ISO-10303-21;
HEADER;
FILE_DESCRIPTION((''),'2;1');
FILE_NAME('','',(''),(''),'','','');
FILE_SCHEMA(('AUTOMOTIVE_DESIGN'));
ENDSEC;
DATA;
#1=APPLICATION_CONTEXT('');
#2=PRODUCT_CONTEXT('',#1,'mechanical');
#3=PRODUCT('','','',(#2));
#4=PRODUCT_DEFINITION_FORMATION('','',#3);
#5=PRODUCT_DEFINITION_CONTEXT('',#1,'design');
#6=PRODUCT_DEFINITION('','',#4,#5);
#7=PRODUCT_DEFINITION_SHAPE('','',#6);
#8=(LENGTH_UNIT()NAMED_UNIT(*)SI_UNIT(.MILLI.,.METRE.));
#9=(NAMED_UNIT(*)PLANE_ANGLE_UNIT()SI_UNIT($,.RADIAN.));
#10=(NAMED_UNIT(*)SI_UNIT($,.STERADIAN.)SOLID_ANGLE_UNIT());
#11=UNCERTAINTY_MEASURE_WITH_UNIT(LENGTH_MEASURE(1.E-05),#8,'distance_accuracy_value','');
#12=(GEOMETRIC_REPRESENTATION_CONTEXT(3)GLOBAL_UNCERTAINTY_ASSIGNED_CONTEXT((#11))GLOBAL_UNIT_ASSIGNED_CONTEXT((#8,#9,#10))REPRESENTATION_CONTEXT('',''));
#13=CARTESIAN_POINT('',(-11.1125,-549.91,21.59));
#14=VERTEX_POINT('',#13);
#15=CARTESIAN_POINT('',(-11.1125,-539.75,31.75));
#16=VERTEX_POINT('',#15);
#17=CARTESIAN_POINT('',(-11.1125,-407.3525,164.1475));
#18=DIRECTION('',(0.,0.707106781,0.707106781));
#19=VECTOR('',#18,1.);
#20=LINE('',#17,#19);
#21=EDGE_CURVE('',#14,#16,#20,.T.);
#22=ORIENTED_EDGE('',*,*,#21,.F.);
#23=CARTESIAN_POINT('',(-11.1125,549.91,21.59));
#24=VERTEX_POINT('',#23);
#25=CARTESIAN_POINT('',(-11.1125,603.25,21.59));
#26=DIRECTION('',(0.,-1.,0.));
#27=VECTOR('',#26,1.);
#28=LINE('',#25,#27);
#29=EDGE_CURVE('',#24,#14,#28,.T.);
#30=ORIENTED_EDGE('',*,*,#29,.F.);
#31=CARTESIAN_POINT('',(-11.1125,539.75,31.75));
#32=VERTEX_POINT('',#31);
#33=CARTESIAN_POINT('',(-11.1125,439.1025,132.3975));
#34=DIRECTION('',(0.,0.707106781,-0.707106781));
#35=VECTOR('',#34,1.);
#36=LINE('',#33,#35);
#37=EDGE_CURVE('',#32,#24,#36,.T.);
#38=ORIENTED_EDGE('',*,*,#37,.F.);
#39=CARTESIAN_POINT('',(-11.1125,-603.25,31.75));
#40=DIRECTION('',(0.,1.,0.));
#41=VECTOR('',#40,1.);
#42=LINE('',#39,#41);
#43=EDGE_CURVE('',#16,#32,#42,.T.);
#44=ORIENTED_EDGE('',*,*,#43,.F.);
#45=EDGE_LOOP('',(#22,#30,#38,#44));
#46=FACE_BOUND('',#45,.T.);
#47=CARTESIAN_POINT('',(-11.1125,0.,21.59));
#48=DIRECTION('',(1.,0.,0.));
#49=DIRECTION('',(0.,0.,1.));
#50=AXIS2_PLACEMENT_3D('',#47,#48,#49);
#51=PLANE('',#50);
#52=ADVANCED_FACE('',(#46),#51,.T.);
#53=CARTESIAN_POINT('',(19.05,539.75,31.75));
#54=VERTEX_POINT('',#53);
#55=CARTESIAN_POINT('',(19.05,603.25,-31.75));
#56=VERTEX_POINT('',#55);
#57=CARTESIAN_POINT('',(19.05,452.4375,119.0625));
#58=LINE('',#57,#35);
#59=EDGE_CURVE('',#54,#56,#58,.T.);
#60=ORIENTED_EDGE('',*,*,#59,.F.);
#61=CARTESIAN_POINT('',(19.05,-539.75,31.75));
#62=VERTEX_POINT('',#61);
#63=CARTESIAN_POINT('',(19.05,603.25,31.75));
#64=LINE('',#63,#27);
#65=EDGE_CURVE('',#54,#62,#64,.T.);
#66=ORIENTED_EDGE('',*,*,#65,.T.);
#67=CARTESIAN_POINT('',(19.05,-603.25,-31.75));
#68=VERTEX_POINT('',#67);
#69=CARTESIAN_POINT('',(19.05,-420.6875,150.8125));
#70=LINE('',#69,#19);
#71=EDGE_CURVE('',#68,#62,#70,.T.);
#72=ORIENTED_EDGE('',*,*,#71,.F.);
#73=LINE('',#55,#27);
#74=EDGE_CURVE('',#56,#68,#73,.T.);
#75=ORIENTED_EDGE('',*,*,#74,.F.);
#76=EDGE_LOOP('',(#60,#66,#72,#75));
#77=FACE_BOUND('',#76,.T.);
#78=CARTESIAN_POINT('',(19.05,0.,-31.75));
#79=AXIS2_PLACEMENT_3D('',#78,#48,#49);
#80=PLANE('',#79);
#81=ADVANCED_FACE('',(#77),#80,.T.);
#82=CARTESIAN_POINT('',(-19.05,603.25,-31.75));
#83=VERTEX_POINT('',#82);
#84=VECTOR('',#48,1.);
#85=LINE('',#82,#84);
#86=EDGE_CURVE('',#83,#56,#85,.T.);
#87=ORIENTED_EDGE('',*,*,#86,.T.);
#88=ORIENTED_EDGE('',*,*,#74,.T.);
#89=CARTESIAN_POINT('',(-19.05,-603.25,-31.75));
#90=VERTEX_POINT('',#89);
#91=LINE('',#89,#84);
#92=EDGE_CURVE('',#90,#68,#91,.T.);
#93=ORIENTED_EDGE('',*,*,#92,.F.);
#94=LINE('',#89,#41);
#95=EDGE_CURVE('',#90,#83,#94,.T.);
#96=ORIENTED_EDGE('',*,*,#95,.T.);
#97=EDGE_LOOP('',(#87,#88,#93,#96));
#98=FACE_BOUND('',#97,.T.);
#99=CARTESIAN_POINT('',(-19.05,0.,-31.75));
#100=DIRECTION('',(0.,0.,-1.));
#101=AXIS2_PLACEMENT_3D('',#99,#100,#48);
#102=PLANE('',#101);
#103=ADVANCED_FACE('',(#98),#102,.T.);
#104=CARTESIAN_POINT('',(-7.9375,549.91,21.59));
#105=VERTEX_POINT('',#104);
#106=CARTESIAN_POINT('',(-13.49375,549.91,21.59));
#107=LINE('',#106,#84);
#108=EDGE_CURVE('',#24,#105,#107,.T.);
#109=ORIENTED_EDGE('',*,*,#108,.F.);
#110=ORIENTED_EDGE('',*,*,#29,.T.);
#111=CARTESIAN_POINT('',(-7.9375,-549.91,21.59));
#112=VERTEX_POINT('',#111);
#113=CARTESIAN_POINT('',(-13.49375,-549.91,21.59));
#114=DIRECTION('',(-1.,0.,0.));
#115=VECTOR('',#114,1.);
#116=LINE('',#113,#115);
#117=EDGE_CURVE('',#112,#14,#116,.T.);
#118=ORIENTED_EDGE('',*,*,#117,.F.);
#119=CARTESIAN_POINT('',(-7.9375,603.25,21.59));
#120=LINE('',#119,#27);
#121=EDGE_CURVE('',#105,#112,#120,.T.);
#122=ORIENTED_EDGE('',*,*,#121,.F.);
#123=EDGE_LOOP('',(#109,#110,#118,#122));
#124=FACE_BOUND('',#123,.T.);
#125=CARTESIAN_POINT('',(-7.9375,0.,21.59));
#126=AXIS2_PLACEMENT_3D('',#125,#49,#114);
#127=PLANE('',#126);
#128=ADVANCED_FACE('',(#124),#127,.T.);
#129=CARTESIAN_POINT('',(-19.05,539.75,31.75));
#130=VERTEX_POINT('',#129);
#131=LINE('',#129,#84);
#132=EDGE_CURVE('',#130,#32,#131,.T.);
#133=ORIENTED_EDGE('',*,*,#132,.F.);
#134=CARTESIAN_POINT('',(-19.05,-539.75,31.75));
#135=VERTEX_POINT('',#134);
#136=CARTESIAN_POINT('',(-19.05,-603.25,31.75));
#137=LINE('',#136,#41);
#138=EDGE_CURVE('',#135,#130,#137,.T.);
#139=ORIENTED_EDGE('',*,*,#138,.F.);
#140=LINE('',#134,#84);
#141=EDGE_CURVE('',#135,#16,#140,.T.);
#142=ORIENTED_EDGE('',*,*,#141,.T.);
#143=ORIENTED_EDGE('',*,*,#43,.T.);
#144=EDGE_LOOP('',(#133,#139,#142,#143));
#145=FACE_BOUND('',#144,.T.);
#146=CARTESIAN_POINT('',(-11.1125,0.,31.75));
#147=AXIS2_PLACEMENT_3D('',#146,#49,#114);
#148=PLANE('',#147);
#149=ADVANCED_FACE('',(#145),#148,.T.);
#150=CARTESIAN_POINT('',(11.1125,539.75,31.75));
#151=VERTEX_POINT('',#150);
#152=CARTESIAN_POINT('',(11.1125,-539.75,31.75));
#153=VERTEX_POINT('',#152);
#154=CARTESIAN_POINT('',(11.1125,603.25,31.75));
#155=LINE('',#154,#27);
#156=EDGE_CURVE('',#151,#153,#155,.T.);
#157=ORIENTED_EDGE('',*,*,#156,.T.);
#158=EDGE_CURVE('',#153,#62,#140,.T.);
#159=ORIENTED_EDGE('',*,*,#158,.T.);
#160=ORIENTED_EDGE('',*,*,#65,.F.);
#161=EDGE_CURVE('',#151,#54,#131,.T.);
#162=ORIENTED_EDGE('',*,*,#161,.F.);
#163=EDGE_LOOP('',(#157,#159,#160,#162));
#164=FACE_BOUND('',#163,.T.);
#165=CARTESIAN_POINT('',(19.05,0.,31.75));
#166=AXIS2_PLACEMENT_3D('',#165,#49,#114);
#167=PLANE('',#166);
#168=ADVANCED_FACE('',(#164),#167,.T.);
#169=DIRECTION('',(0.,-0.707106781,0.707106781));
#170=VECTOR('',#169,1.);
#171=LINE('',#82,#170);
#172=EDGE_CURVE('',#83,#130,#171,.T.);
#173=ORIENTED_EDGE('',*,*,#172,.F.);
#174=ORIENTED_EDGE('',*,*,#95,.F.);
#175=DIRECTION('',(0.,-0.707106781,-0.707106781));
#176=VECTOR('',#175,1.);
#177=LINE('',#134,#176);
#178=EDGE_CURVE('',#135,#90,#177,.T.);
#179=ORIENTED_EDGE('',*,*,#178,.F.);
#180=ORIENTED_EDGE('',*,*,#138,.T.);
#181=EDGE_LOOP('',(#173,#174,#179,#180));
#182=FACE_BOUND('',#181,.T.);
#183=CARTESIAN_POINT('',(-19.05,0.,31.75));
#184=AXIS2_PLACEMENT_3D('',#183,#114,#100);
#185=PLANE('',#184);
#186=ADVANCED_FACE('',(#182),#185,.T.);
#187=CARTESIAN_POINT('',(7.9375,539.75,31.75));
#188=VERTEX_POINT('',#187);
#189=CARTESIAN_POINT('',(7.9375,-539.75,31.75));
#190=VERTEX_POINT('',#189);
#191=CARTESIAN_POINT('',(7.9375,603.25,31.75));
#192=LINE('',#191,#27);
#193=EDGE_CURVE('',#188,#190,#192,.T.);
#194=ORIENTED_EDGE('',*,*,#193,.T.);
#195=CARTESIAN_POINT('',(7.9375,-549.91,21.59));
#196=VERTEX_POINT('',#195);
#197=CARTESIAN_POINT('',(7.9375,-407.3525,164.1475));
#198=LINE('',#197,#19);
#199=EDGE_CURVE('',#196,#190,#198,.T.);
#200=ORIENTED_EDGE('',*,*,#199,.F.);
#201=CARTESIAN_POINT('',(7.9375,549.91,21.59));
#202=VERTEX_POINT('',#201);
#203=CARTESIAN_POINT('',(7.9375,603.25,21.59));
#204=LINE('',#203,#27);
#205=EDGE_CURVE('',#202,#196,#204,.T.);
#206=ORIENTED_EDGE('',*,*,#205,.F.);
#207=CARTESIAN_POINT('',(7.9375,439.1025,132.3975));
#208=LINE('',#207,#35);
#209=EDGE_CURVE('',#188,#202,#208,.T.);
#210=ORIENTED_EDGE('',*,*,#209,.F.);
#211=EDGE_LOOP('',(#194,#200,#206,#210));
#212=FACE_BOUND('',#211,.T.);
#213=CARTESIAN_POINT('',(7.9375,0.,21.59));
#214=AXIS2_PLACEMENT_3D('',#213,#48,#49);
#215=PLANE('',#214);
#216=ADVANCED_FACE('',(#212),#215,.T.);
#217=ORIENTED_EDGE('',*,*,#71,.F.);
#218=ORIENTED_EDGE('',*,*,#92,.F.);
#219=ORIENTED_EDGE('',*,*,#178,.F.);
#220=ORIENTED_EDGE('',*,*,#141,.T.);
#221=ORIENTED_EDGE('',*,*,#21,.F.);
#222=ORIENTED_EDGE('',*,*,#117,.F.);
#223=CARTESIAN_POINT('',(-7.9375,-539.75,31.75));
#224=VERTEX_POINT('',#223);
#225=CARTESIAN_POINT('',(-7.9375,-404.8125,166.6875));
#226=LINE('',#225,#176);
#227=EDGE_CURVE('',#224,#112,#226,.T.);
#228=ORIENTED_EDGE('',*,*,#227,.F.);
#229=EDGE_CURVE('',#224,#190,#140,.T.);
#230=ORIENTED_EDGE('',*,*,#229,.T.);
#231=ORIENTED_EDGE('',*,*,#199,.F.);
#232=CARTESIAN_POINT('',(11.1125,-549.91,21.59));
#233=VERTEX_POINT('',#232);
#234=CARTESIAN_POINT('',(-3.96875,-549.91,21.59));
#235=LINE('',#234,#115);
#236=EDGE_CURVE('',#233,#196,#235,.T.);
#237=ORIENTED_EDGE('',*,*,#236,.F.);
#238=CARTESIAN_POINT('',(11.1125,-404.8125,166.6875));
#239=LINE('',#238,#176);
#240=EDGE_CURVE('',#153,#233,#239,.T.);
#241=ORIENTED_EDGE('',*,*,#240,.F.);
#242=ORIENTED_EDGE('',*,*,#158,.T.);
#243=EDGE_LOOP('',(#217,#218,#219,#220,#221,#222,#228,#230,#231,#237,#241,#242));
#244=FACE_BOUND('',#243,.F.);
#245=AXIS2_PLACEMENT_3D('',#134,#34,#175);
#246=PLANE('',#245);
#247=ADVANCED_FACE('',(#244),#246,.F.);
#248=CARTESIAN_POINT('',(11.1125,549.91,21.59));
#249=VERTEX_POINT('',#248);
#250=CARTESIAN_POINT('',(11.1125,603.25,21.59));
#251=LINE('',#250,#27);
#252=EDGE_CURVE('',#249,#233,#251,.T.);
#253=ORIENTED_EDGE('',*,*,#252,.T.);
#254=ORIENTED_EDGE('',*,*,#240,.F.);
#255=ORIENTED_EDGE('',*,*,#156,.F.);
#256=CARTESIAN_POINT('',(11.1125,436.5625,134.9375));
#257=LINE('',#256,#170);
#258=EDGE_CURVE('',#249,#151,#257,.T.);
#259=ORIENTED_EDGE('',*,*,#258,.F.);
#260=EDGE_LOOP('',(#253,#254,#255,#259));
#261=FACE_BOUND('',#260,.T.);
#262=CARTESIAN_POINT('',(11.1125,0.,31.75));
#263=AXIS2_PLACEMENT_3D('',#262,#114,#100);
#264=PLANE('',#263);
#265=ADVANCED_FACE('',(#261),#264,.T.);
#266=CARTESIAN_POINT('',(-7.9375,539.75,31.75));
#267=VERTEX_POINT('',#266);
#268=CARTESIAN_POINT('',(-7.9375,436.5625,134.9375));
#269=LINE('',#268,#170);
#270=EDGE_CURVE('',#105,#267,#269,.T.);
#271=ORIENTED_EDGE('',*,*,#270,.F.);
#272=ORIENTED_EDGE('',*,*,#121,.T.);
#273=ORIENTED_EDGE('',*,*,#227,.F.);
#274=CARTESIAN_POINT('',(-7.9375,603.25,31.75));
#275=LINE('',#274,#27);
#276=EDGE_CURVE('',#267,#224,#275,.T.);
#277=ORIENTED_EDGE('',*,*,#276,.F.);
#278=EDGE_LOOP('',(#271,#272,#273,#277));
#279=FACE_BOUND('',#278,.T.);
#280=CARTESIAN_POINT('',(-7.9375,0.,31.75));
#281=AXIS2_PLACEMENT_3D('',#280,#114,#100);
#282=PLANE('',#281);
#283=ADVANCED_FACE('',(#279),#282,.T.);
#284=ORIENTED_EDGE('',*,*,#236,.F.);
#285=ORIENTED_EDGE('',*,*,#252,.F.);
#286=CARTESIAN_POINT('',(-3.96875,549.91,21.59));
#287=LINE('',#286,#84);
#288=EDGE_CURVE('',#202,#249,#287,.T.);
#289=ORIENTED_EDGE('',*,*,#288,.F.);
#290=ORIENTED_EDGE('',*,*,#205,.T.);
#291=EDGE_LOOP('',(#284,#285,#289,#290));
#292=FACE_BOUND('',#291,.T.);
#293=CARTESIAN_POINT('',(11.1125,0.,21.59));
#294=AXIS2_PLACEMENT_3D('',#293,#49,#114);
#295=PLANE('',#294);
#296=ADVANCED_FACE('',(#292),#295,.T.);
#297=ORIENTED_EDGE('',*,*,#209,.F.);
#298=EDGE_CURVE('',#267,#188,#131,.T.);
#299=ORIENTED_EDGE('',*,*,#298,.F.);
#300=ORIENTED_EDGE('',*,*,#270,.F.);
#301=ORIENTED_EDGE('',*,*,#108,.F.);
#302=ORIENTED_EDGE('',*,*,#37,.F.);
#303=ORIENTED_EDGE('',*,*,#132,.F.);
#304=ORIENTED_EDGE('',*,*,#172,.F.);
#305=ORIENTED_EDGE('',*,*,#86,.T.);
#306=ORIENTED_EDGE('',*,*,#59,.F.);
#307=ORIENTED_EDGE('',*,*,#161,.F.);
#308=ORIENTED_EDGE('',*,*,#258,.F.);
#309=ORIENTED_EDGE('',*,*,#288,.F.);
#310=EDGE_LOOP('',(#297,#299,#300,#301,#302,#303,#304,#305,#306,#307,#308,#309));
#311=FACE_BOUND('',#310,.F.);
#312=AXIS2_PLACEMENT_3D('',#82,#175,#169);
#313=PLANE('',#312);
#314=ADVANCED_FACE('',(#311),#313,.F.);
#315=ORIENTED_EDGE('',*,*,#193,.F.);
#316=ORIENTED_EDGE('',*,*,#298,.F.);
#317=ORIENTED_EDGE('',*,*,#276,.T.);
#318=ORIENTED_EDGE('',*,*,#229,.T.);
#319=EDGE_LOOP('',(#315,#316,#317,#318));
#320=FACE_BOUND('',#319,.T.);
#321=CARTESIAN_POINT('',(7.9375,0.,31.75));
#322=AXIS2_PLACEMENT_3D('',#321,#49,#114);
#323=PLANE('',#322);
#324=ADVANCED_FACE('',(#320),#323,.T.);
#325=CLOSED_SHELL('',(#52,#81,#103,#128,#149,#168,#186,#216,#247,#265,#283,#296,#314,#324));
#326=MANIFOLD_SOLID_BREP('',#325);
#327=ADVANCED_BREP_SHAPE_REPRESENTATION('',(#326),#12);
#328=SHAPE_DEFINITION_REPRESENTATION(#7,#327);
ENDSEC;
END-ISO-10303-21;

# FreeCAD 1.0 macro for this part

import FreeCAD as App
import Part
import Sketcher

V = App.Vector
Q = App.Units.Quantity

doc = App.newDocument("Part")
body = doc.addObject("PartDesign::Body", "Body")

sketch1 = doc.addObject("Sketcher::SketchObject", "Sketch")
body.addObject(sketch1)
sketch1.AttachmentSupport = (doc.XZ_Plane, [""])
sketch1.MapMode = "FlatFace"
sketch1.addGeometry(Part.LineSegment(V(-19.1, -31.8, 0), V(19.1, -31.8, 0)), False)
sketch1.addGeometry(Part.LineSegment(V(19.1, -31.8, 0), V(19.1, 31.8, 0)), False)
sketch1.addGeometry(Part.LineSegment(V(19.1, 31.8, 0), V(11.1, 31.8, 0)), False)
sketch1.addGeometry(Part.LineSegment(V(11.1, 31.8, 0), V(11.1, 21.6, 0)), False)
sketch1.addGeometry(Part.LineSegment(V(11.1, 21.6, 0), V(7.9, 21.6, 0)), False)
sketch1.addGeometry(Part.LineSegment(V(7.9, 21.6, 0), V(7.9, 31.8, 0)), False)
sketch1.addGeometry(Part.LineSegment(V(7.9, 31.8, 0), V(-7.9, 31.8, 0)), False)
sketch1.addGeometry(Part.LineSegment(V(-7.9, 31.8, 0), V(-7.9, 21.6, 0)), False)
sketch1.addGeometry(Part.LineSegment(V(-7.9, 21.6, 0), V(-11.1, 21.6, 0)), False)
sketch1.addGeometry(Part.LineSegment(V(-11.1, 21.6, 0), V(-11.1, 31.8, 0)), False)
sketch1.addGeometry(Part.LineSegment(V(-11.1, 31.8, 0), V(-19.1, 31.8, 0)), False)
sketch1.addGeometry(Part.LineSegment(V(-19.1, 31.8, 0), V(-19.1, -31.8, 0)), False)
sketch1.addConstraint(Sketcher.Constraint("Coincident", 0, 2, 1, 1))
sketch1.addConstraint(Sketcher.Constraint("Coincident", 1, 2, 2, 1))
sketch1.addConstraint(Sketcher.Constraint("Coincident", 2, 2, 3, 1))
sketch1.addConstraint(Sketcher.Constraint("Coincident", 3, 2, 4, 1))
sketch1.addConstraint(Sketcher.Constraint("Coincident", 4, 2, 5, 1))
sketch1.addConstraint(Sketcher.Constraint("Coincident", 5, 2, 6, 1))
sketch1.addConstraint(Sketcher.Constraint("Coincident", 6, 2, 7, 1))
sketch1.addConstraint(Sketcher.Constraint("Coincident", 7, 2, 8, 1))
sketch1.addConstraint(Sketcher.Constraint("Coincident", 8, 2, 9, 1))
sketch1.addConstraint(Sketcher.Constraint("Coincident", 9, 2, 10, 1))
sketch1.addConstraint(Sketcher.Constraint("Coincident", 10, 2, 11, 1))
sketch1.addConstraint(Sketcher.Constraint("Coincident", 11, 2, 0, 1))
sketch1.addConstraint(Sketcher.Constraint("Horizontal", 0))
sketch1.addConstraint(Sketcher.Constraint("Vertical", 1))
sketch1.addConstraint(Sketcher.Constraint("Horizontal", 2))
sketch1.addConstraint(Sketcher.Constraint("Vertical", 3))
sketch1.addConstraint(Sketcher.Constraint("Horizontal", 4))
sketch1.addConstraint(Sketcher.Constraint("Vertical", 5))
sketch1.addConstraint(Sketcher.Constraint("Horizontal", 6))
sketch1.addConstraint(Sketcher.Constraint("Vertical", 7))
sketch1.addConstraint(Sketcher.Constraint("Horizontal", 8))
sketch1.addConstraint(Sketcher.Constraint("Vertical", 9))
sketch1.addConstraint(Sketcher.Constraint("Horizontal", 10))
sketch1.addConstraint(Sketcher.Constraint("Vertical", 11))
sketch1.addConstraint(Sketcher.Constraint("Symmetric", 0, 2, 10, 2, -1, 1))
sketch1.addConstraint(Sketcher.Constraint("Symmetric", 4, 2, 7, 2, -2))
sketch1.addConstraint(Sketcher.Constraint("Symmetric", 2, 2, 9, 2, -2))
sketch1.addConstraint(Sketcher.Constraint("Horizontal", 2, 2, 5, 2))
sketch1.addConstraint(Sketcher.Constraint("DistanceX", 0, 1, 0, 2, Q("1.5 in")))
sketch1.addConstraint(Sketcher.Constraint("DistanceY", 1, 1, 1, 2, Q("2.5 in")))
sketch1.addConstraint(Sketcher.Constraint("DistanceY", 3, 2, 3, 1, Q("0.4 in")))
sketch1.addConstraint(Sketcher.Constraint("DistanceX", 2, 2, 2, 1, Q("0.3125 in")))
sketch1.addConstraint(Sketcher.Constraint("DistanceX", 4, 2, 4, 1, Q("0.125 in")))
pad1 = doc.addObject("PartDesign::Pad", "Pad")
body.addObject(pad1)
pad1.Profile = sketch1
pad1.Length = Q("47.5 in")
pad1.Midplane = True

sketch2 = doc.addObject("Sketcher::SketchObject", "Sketch001")
body.addObject(sketch2)
sketch2.AttachmentSupport = (doc.YZ_Plane, [""])
sketch2.MapMode = "FlatFace"
sketch2.AttachmentOffset = App.Placement(V(0, 0, -0.75 * 25.4), App.Rotation())
sketch2.addGeometry(Part.LineSegment(V(-540, 32, 0), V(-603, -32, 0)), False)
sketch2.addGeometry(Part.LineSegment(V(-603, -32, 0), V(-603, 32, 0)), False)
sketch2.addGeometry(Part.LineSegment(V(-603, 32, 0), V(-540, 32, 0)), False)
sketch2.addGeometry(Part.LineSegment(V(603, 32, 0), V(603, -32, 0)), False)
sketch2.addGeometry(Part.LineSegment(V(603, -32, 0), V(540, 32, 0)), False)
sketch2.addGeometry(Part.LineSegment(V(540, 32, 0), V(603, 32, 0)), False)
sketch2.addConstraint(Sketcher.Constraint("Coincident", 0, 2, 1, 1))
sketch2.addConstraint(Sketcher.Constraint("Coincident", 1, 2, 2, 1))
sketch2.addConstraint(Sketcher.Constraint("Coincident", 2, 2, 0, 1))
sketch2.addConstraint(Sketcher.Constraint("Coincident", 3, 2, 4, 1))
sketch2.addConstraint(Sketcher.Constraint("Coincident", 4, 2, 5, 1))
sketch2.addConstraint(Sketcher.Constraint("Coincident", 5, 2, 3, 1))
sketch2.addConstraint(Sketcher.Constraint("Vertical", 1))
sketch2.addConstraint(Sketcher.Constraint("Horizontal", 2))
sketch2.addConstraint(Sketcher.Constraint("Vertical", 3))
sketch2.addConstraint(Sketcher.Constraint("Horizontal", 5))
sketch2.addConstraint(Sketcher.Constraint("Symmetric", 1, 2, 3, 2, -1, 1))
sketch2.addConstraint(Sketcher.Constraint("Symmetric", 2, 2, 4, 2, -2))
sketch2.addConstraint(Sketcher.Constraint("Perpendicular", 0, 4))
sketch2.addConstraint(Sketcher.Constraint("Horizontal", 0, 2, 3, 2))
sketch2.addConstraint(Sketcher.Constraint("DistanceX", 2, 1, 2, 2, Q("2.5 in")))
sketch2.addConstraint(Sketcher.Constraint("DistanceX", 2, 2, 3, 2, Q("45 in")))
pocket1 = doc.addObject("PartDesign::Pocket", "Pocket")
body.addObject(pocket1)
pocket1.Profile = sketch2
pocket1.Type = "ThroughAll"
pocket1.Reversed = True

doc.recompute()
